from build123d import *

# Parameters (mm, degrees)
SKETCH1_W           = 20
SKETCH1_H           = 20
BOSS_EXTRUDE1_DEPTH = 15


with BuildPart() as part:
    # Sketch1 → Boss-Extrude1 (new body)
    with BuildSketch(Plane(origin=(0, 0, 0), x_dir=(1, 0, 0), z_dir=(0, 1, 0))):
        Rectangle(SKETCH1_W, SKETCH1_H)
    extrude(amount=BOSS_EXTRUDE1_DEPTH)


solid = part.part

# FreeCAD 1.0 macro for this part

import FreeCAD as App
import Part
import Sketcher

doc = App.newDocument("Part")
body = doc.addObject("PartDesign::Body", "Body")

sketch1 = body.newObject("Sketcher::SketchObject", "Sketch")
sketch1.AttachmentSupport = (doc.getObject("XZ_Plane"), [""])
sketch1.MapMode = "FlatFace"
sketch1.addGeometry([
    Part.LineSegment(App.Vector(-10, -10, 0), App.Vector(-10, 10, 0)),
    Part.LineSegment(App.Vector(-10, 10, 0), App.Vector(10, 10, 0)),
    Part.LineSegment(App.Vector(10, 10, 0), App.Vector(10, -10, 0)),
    Part.LineSegment(App.Vector(10, -10, 0), App.Vector(-10, -10, 0)),
], False)
sketch1.addConstraint([
    Sketcher.Constraint("Coincident", 0, 2, 1, 1),
    Sketcher.Constraint("Coincident", 1, 2, 2, 1),
    Sketcher.Constraint("Coincident", 2, 2, 3, 1),
    Sketcher.Constraint("Coincident", 3, 2, 0, 1),
    Sketcher.Constraint("Vertical", 0),
    Sketcher.Constraint("Horizontal", 1),
    Sketcher.Constraint("Vertical", 2),
    Sketcher.Constraint("Horizontal", 3),
    Sketcher.Constraint("Symmetric", 0, 2, 2, 2, -1, 1),
    Sketcher.Constraint("Equal", 3, 0),
    Sketcher.Constraint("DistanceX", 1, 1, 1, 2, 20.0),
])
pad1 = body.newObject("PartDesign::Pad", "Pad")
pad1.Profile = sketch1
pad1.Length = 15
pad1.Reversed = True

doc.recompute()
